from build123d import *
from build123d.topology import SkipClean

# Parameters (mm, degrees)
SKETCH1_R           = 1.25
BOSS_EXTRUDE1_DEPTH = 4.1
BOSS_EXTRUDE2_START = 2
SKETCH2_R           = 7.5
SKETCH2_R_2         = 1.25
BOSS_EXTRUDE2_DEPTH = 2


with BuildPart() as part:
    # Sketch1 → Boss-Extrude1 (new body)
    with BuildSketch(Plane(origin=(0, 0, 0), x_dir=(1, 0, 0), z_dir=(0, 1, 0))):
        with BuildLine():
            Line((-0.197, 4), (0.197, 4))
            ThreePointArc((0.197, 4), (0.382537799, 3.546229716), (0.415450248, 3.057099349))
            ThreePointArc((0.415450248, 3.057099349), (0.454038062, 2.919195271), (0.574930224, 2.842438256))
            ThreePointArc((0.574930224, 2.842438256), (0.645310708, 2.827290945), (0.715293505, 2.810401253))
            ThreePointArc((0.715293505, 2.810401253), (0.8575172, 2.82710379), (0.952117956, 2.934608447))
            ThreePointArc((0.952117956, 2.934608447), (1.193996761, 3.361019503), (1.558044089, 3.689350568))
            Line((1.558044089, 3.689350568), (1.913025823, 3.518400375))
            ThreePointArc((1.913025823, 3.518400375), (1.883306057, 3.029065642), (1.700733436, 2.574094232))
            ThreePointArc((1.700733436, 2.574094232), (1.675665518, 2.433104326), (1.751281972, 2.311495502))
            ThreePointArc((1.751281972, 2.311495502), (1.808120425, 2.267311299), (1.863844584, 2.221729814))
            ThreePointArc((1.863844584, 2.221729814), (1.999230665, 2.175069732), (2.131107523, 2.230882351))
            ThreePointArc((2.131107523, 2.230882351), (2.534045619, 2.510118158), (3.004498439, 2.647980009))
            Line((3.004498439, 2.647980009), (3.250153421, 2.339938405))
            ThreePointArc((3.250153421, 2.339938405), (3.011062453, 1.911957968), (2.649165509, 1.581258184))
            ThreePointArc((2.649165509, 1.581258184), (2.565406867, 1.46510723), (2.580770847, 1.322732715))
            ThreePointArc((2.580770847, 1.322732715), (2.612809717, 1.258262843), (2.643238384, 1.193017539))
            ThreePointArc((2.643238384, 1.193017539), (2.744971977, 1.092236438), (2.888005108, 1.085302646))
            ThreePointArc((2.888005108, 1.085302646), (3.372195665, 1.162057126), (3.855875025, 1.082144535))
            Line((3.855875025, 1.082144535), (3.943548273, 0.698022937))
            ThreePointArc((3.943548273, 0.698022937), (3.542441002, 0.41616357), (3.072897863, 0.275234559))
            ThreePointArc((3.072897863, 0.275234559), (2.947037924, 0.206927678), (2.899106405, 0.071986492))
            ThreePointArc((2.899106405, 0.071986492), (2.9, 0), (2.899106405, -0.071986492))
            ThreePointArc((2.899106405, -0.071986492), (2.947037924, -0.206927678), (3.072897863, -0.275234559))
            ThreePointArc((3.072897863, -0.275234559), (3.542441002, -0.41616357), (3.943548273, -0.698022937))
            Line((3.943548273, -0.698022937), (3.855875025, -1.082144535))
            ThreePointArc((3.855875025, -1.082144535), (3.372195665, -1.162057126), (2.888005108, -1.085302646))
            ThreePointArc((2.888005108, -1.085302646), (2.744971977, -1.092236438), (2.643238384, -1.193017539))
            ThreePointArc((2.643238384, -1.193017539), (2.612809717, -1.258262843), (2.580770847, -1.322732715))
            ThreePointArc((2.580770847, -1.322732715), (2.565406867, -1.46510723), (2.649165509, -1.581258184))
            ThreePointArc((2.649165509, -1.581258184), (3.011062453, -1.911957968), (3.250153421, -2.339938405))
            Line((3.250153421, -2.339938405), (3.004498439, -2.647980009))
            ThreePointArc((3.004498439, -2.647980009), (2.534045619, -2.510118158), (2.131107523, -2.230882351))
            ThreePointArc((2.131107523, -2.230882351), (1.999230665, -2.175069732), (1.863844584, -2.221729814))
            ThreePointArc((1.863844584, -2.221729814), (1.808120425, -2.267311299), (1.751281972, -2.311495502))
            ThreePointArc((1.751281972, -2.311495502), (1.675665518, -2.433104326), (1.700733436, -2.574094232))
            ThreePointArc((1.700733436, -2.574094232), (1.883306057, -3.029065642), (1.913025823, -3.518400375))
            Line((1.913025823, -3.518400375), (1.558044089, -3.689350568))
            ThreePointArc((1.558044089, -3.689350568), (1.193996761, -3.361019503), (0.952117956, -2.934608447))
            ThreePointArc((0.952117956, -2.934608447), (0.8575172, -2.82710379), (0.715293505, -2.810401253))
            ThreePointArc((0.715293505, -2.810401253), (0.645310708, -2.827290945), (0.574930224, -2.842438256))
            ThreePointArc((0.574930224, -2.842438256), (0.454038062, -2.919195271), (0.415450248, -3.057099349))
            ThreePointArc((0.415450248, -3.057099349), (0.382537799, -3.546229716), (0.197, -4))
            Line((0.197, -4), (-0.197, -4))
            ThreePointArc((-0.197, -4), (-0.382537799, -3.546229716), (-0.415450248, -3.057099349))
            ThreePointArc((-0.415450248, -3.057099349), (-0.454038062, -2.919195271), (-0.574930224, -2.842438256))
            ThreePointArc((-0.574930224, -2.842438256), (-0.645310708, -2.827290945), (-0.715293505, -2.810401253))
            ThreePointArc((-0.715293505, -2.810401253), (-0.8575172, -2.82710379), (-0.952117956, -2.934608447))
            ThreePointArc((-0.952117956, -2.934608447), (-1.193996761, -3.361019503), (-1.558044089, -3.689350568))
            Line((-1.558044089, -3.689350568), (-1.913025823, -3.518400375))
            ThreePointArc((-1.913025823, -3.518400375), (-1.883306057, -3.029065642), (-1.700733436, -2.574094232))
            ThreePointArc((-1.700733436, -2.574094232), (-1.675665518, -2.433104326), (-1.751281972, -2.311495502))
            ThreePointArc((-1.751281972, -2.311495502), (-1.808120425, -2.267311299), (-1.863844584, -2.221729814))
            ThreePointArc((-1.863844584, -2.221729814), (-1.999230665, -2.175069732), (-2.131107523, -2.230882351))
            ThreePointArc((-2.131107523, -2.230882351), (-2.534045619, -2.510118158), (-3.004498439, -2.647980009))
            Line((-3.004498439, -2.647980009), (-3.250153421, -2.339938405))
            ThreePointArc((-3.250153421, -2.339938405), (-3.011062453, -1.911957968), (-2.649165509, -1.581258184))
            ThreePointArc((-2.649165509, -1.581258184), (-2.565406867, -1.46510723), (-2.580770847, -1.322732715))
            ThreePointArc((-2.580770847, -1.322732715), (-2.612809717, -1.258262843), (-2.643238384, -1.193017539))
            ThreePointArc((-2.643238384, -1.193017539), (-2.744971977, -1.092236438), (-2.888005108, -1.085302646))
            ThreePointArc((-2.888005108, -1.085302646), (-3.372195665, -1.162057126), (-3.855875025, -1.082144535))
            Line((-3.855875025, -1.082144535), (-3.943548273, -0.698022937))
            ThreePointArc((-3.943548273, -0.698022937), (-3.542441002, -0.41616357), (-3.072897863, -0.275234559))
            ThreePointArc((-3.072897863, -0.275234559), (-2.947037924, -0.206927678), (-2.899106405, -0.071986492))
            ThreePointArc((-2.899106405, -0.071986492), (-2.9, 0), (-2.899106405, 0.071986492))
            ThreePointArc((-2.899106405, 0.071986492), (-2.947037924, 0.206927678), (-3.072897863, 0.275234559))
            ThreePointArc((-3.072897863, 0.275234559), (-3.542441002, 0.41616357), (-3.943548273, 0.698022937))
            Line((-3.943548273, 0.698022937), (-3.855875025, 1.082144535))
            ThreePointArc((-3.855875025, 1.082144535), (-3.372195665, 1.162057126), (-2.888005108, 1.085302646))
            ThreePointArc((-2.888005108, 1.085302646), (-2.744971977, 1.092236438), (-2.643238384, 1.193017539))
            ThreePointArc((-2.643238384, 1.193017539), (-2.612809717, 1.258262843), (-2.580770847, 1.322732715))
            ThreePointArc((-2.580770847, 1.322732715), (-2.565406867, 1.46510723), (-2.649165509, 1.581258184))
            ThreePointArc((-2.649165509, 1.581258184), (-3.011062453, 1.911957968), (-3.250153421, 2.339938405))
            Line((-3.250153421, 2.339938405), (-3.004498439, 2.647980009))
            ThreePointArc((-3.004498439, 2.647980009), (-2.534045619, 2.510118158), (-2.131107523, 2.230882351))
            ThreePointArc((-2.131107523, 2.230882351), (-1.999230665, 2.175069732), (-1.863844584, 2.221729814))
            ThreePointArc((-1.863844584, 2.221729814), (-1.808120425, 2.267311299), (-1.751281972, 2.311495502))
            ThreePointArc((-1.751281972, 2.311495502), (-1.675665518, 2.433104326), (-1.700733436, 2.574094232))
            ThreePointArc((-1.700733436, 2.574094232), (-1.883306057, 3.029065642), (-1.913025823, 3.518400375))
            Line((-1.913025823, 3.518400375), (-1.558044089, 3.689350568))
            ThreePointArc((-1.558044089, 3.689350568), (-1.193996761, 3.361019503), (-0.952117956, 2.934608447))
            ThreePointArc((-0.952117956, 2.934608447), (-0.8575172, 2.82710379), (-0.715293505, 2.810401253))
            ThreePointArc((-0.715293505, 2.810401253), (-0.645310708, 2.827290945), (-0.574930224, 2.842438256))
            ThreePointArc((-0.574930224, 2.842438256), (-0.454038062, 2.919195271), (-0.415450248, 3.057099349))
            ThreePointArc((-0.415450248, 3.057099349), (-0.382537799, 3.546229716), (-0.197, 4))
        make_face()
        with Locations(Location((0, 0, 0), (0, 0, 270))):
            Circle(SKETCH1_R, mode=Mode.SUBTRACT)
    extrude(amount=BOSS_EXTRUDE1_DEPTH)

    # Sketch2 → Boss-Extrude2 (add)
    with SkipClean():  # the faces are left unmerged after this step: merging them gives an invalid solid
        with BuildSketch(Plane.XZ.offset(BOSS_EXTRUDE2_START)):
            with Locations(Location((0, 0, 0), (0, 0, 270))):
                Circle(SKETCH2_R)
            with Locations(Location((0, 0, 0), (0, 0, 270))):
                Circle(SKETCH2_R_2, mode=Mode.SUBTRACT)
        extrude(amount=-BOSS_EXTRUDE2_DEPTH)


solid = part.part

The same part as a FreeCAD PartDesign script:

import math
import FreeCAD as App
import Part
import Sketcher

doc = App.newDocument("Part")
body = doc.addObject("PartDesign::Body", "Body")

# Sketch on XZ plane
sketch1 = body.newObject("Sketcher::SketchObject", "Sketch")
sketch1.AttachmentSupport = (doc.getObject("XZ_Plane"), [""])
sketch1.MapMode = "FlatFace"
sketch1.addGeometry([
    Part.LineSegment(App.Vector(0.2, -4, 0), App.Vector(-0.2, -4, 0)),  # 0
    Part.ArcOfCircle(Part.Circle(App.Vector(1.11, -3.2, 0), App.Vector(0, 0, 1), 1.53), math.radians(175), math.radians(211)),  # 1
    Part.ArcOfCircle(Part.Circle(App.Vector(-0.61, -3.04, 0), App.Vector(0, 0, 1), 0.2), math.radians(-5), math.radians(79)),  # 2
    Part.ArcOfCircle(Part.Circle(App.Vector(0, 0, 0), App.Vector(0, 0, 1), 2.9), math.radians(-104.28), math.radians(-101.43)),  # 3
    Part.ArcOfCircle(Part.Circle(App.Vector(-0.76, -3, 0), App.Vector(0, 0, 1), 0.2), math.radians(76), math.radians(160)),  # 4
    Part.ArcOfCircle(Part.Circle(App.Vector(-2.39, -2.4, 0), App.Vector(0, 0, 1), 1.53), math.radians(-57), math.radians(-20)),  # 5
    Part.LineSegment(App.Vector(-1.56, -3.69, 0), App.Vector(-1.91, -3.52, 0)),  # 6
    Part.ArcOfCircle(Part.Circle(App.Vector(-0.39, -3.37, 0), App.Vector(0, 0, 1), 1.53), math.radians(149), math.radians(186)),  # 7
    Part.ArcOfCircle(Part.Circle(App.Vector(-1.87, -2.47, 0), App.Vector(0, 0, 1), 0.2), math.radians(-31), math.radians(53)),  # 8
    Part.ArcOfCircle(Part.Circle(App.Vector(0, 0, 0), App.Vector(0, 0, 1), 2.9), math.radians(-129.99), math.radians(-127.15)),  # 9
    Part.ArcOfCircle(Part.Circle(App.Vector(-1.99, -2.37, 0), App.Vector(0, 0, 1), 0.2), math.radians(50), math.radians(134)),  # 10
    Part.ArcOfCircle(Part.Circle(App.Vector(-3.2, -1.13, 0), App.Vector(0, 0, 1), 1.53), math.radians(-83), math.radians(-46)),  # 11
    Part.LineSegment(App.Vector(-3, -2.65, 0), App.Vector(-3.25, -2.34, 0)),  # 12
    Part.ArcOfCircle(Part.Circle(App.Vector(-1.81, -2.86, 0), App.Vector(0, 0, 1), 1.53), math.radians(123), math.radians(160)),  # 13
    Part.ArcOfCircle(Part.Circle(App.Vector(-2.76, -1.41, 0), App.Vector(0, 0, 1), 0.2), math.radians(-57), math.radians(27)),  # 14
    Part.ArcOfCircle(Part.Circle(App.Vector(0, 0, 0), App.Vector(0, 0, 1), 2.9), math.radians(-155.71), math.radians(-152.86)),  # 15
    Part.ArcOfCircle(Part.Circle(App.Vector(-2.83, -1.28, 0), App.Vector(0, 0, 1), 0.2), math.radians(24), math.radians(108)),  # 16
    Part.ArcOfCircle(Part.Circle(App.Vector(-3.37, 0.37, 0), App.Vector(0, 0, 1), 1.53), math.radians(-109), math.radians(-72)),  # 17
    Part.LineSegment(App.Vector(-3.86, -1.08, 0), App.Vector(-3.94, -0.7, 0)),  # 18
    Part.ArcOfCircle(Part.Circle(App.Vector(-2.87, -1.8, 0), App.Vector(0, 0, 1), 1.53), math.radians(98), math.radians(134)),  # 19
    Part.ArcOfCircle(Part.Circle(App.Vector(-3.1, -0.08, 0), App.Vector(0, 0, 1), 0.2), math.radians(-82), math.radians(1)),  # 20
    Part.ArcOfCircle(Part.Circle(App.Vector(0, 0, 0), App.Vector(0, 0, 1), 2.9), math.radians(178.58), math.radians(181.42)),  # 21
    Part.ArcOfCircle(Part.Circle(App.Vector(-3.1, 0.08, 0), App.Vector(0, 0, 1), 0.2), math.radians(-1), math.radians(82)),  # 22
    Part.ArcOfCircle(Part.Circle(App.Vector(-2.87, 1.8, 0), App.Vector(0, 0, 1), 1.53), math.radians(-134), math.radians(-98)),  # 23
    Part.LineSegment(App.Vector(-3.94, 0.7, 0), App.Vector(-3.86, 1.08, 0)),  # 24
    Part.ArcOfCircle(Part.Circle(App.Vector(-3.37, -0.37, 0), App.Vector(0, 0, 1), 1.53), math.radians(72), math.radians(109)),  # 25
    Part.ArcOfCircle(Part.Circle(App.Vector(-2.83, 1.28, 0), App.Vector(0, 0, 1), 0.2), math.radians(-108), math.radians(-24)),  # 26
    Part.ArcOfCircle(Part.Circle(App.Vector(0, 0, 0), App.Vector(0, 0, 1), 2.9), math.radians(152.86), math.radians(155.71)),  # 27
    Part.ArcOfCircle(Part.Circle(App.Vector(-2.76, 1.41, 0), App.Vector(0, 0, 1), 0.2), math.radians(-27), math.radians(57)),  # 28
    Part.ArcOfCircle(Part.Circle(App.Vector(-1.81, 2.86, 0), App.Vector(0, 0, 1), 1.53), math.radians(-160), math.radians(-123)),  # 29
    Part.LineSegment(App.Vector(-3.25, 2.34, 0), App.Vector(-3, 2.65, 0)),  # 30
    Part.ArcOfCircle(Part.Circle(App.Vector(-3.2, 1.13, 0), App.Vector(0, 0, 1), 1.53), math.radians(46), math.radians(83)),  # 31
    Part.ArcOfCircle(Part.Circle(App.Vector(-1.99, 2.37, 0), App.Vector(0, 0, 1), 0.2), math.radians(-134), math.radians(-50)),  # 32
    Part.ArcOfCircle(Part.Circle(App.Vector(0, 0, 0), App.Vector(0, 0, 1), 2.9), math.radians(127.15), math.radians(129.99)),  # 33
    Part.ArcOfCircle(Part.Circle(App.Vector(-1.87, 2.47, 0), App.Vector(0, 0, 1), 0.2), math.radians(-53), math.radians(31)),  # 34
    Part.ArcOfCircle(Part.Circle(App.Vector(-0.39, 3.37, 0), App.Vector(0, 0, 1), 1.53), math.radians(174), math.radians(211)),  # 35
    Part.LineSegment(App.Vector(-1.91, 3.52, 0), App.Vector(-1.56, 3.69, 0)),  # 36
    Part.ArcOfCircle(Part.Circle(App.Vector(-2.39, 2.4, 0), App.Vector(0, 0, 1), 1.53), math.radians(20), math.radians(57)),  # 37
    Part.ArcOfCircle(Part.Circle(App.Vector(-0.76, 3, 0), App.Vector(0, 0, 1), 0.2), math.radians(-160), math.radians(-76)),  # 38
    Part.ArcOfCircle(Part.Circle(App.Vector(0, 0, 0), App.Vector(0, 0, 1), 2.9), math.radians(101.43), math.radians(104.28)),  # 39
    Part.ArcOfCircle(Part.Circle(App.Vector(-0.61, 3.04, 0), App.Vector(0, 0, 1), 0.2), math.radians(-79), math.radians(5)),  # 40
    Part.ArcOfCircle(Part.Circle(App.Vector(1.11, 3.2, 0), App.Vector(0, 0, 1), 1.53), math.radians(149), math.radians(185)),  # 41
    Part.LineSegment(App.Vector(-0.2, 4, 0), App.Vector(0.2, 4, 0)),  # 42
    Part.ArcOfCircle(Part.Circle(App.Vector(-1.11, 3.2, 0), App.Vector(0, 0, 1), 1.53), math.radians(-5), math.radians(31)),  # 43
    Part.ArcOfCircle(Part.Circle(App.Vector(0.61, 3.04, 0), App.Vector(0, 0, 1), 0.2), math.radians(175), math.radians(259)),  # 44
    Part.ArcOfCircle(Part.Circle(App.Vector(0, 0, 0), App.Vector(0, 0, 1), 2.9), math.radians(75.72), math.radians(78.57)),  # 45
    Part.ArcOfCircle(Part.Circle(App.Vector(0.76, 3, 0), App.Vector(0, 0, 1), 0.2), math.radians(-104), math.radians(-20)),  # 46
    Part.ArcOfCircle(Part.Circle(App.Vector(2.39, 2.4, 0), App.Vector(0, 0, 1), 1.53), math.radians(123), math.radians(160)),  # 47
    Part.LineSegment(App.Vector(1.56, 3.69, 0), App.Vector(1.91, 3.52, 0)),  # 48
    Part.ArcOfCircle(Part.Circle(App.Vector(0.39, 3.37, 0), App.Vector(0, 0, 1), 1.53), math.radians(-31), math.radians(6)),  # 49
    Part.ArcOfCircle(Part.Circle(App.Vector(1.87, 2.47, 0), App.Vector(0, 0, 1), 0.2), math.radians(149), math.radians(233)),  # 50
    Part.ArcOfCircle(Part.Circle(App.Vector(0, 0, 0), App.Vector(0, 0, 1), 2.9), math.radians(50.01), math.radians(52.85)),  # 51
    Part.ArcOfCircle(Part.Circle(App.Vector(1.99, 2.37, 0), App.Vector(0, 0, 1), 0.2), math.radians(-130), math.radians(-46)),  # 52
    Part.ArcOfCircle(Part.Circle(App.Vector(3.2, 1.13, 0), App.Vector(0, 0, 1), 1.53), math.radians(97), math.radians(134)),  # 53
    Part.LineSegment(App.Vector(3, 2.65, 0), App.Vector(3.25, 2.34, 0)),  # 54
    Part.ArcOfCircle(Part.Circle(App.Vector(1.81, 2.86, 0), App.Vector(0, 0, 1), 1.53), math.radians(-57), math.radians(-20)),  # 55
    Part.ArcOfCircle(Part.Circle(App.Vector(2.76, 1.41, 0), App.Vector(0, 0, 1), 0.2), math.radians(123), math.radians(207)),  # 56
    Part.ArcOfCircle(Part.Circle(App.Vector(0, 0, 0), App.Vector(0, 0, 1), 2.9), math.radians(24.29), math.radians(27.14)),  # 57
    Part.ArcOfCircle(Part.Circle(App.Vector(2.83, 1.28, 0), App.Vector(0, 0, 1), 0.2), math.radians(-156), math.radians(-72)),  # 58
    Part.ArcOfCircle(Part.Circle(App.Vector(3.37, -0.37, 0), App.Vector(0, 0, 1), 1.53), math.radians(71), math.radians(108)),  # 59
    Part.LineSegment(App.Vector(3.86, 1.08, 0), App.Vector(3.94, 0.7, 0)),  # 60
    Part.ArcOfCircle(Part.Circle(App.Vector(2.87, 1.8, 0), App.Vector(0, 0, 1), 1.53), math.radians(-82), math.radians(-46)),  # 61
    Part.ArcOfCircle(Part.Circle(App.Vector(3.1, 0.08, 0), App.Vector(0, 0, 1), 0.2), math.radians(98), math.radians(181)),  # 62
    Part.ArcOfCircle(Part.Circle(App.Vector(0, 0, 0), App.Vector(0, 0, 1), 2.9), math.radians(-1.42), math.radians(1.42)),  # 63
    Part.ArcOfCircle(Part.Circle(App.Vector(3.1, -0.08, 0), App.Vector(0, 0, 1), 0.2), math.radians(179), math.radians(262)),  # 64
    Part.ArcOfCircle(Part.Circle(App.Vector(2.87, -1.8, 0), App.Vector(0, 0, 1), 1.53), math.radians(46), math.radians(82)),  # 65
    Part.LineSegment(App.Vector(3.94, -0.7, 0), App.Vector(3.86, -1.08, 0)),  # 66
    Part.ArcOfCircle(Part.Circle(App.Vector(3.37, 0.37, 0), App.Vector(0, 0, 1), 1.53), math.radians(-108), math.radians(-71)),  # 67
    Part.ArcOfCircle(Part.Circle(App.Vector(2.83, -1.28, 0), App.Vector(0, 0, 1), 0.2), math.radians(72), math.radians(156)),  # 68
    Part.ArcOfCircle(Part.Circle(App.Vector(0, 0, 0), App.Vector(0, 0, 1), 2.9), math.radians(-27.14), math.radians(-24.29)),  # 69
    Part.ArcOfCircle(Part.Circle(App.Vector(2.76, -1.41, 0), App.Vector(0, 0, 1), 0.2), math.radians(153), math.radians(237)),  # 70
    Part.ArcOfCircle(Part.Circle(App.Vector(1.81, -2.86, 0), App.Vector(0, 0, 1), 1.53), math.radians(20), math.radians(57)),  # 71
    Part.LineSegment(App.Vector(3.25, -2.34, 0), App.Vector(3, -2.65, 0)),  # 72
    Part.ArcOfCircle(Part.Circle(App.Vector(3.2, -1.13, 0), App.Vector(0, 0, 1), 1.53), math.radians(-134), math.radians(-97)),  # 73
    Part.ArcOfCircle(Part.Circle(App.Vector(1.99, -2.37, 0), App.Vector(0, 0, 1), 0.2), math.radians(46), math.radians(130)),  # 74
    Part.ArcOfCircle(Part.Circle(App.Vector(0, 0, 0), App.Vector(0, 0, 1), 2.9), math.radians(-52.85), math.radians(-50.01)),  # 75
    Part.ArcOfCircle(Part.Circle(App.Vector(1.87, -2.47, 0), App.Vector(0, 0, 1), 0.2), math.radians(127), math.radians(211)),  # 76
    Part.ArcOfCircle(Part.Circle(App.Vector(0.39, -3.37, 0), App.Vector(0, 0, 1), 1.53), math.radians(-6), math.radians(31)),  # 77
    Part.LineSegment(App.Vector(1.91, -3.52, 0), App.Vector(1.56, -3.69, 0)),  # 78
    Part.ArcOfCircle(Part.Circle(App.Vector(2.39, -2.4, 0), App.Vector(0, 0, 1), 1.53), math.radians(-160), math.radians(-123)),  # 79
    Part.ArcOfCircle(Part.Circle(App.Vector(0.76, -3, 0), App.Vector(0, 0, 1), 0.2), math.radians(20), math.radians(104)),  # 80
    Part.ArcOfCircle(Part.Circle(App.Vector(0, 0, 0), App.Vector(0, 0, 1), 2.9), math.radians(-78.57), math.radians(-75.72)),  # 81
    Part.ArcOfCircle(Part.Circle(App.Vector(0.61, -3.04, 0), App.Vector(0, 0, 1), 0.2), math.radians(101), math.radians(185)),  # 82
    Part.ArcOfCircle(Part.Circle(App.Vector(-1.11, -3.2, 0), App.Vector(0, 0, 1), 1.53), math.radians(-31), math.radians(5)),  # 83
    Part.Circle(App.Vector(0, 0, 0), App.Vector(0, 0, 1), 1.25),  # 84
], False)
sketch1.addConstraint([
    Sketcher.Constraint("Coincident", 0, 2, 1, 2),
    Sketcher.Constraint("Tangent", 1, 1, 2, 1),
    Sketcher.Constraint("Tangent", 2, 2, 3, 2),
    Sketcher.Constraint("Tangent", 3, 1, 4, 1),
    Sketcher.Constraint("Tangent", 4, 2, 5, 2),
    Sketcher.Constraint("Coincident", 5, 1, 6, 1),
    Sketcher.Constraint("Coincident", 6, 2, 7, 2),
    Sketcher.Constraint("Tangent", 7, 1, 8, 1),
    Sketcher.Constraint("Tangent", 8, 2, 9, 2),
    Sketcher.Constraint("Tangent", 9, 1, 10, 1),
    Sketcher.Constraint("Tangent", 10, 2, 11, 2),
    Sketcher.Constraint("Coincident", 11, 1, 12, 1),
    Sketcher.Constraint("Coincident", 12, 2, 13, 2),
    Sketcher.Constraint("Tangent", 13, 1, 14, 1),
    Sketcher.Constraint("Tangent", 14, 2, 15, 2),
    Sketcher.Constraint("Tangent", 15, 1, 16, 1),
    Sketcher.Constraint("Tangent", 16, 2, 17, 2),
    Sketcher.Constraint("Coincident", 17, 1, 18, 1),
    Sketcher.Constraint("Coincident", 18, 2, 19, 2),
    Sketcher.Constraint("Tangent", 19, 1, 20, 1),
    Sketcher.Constraint("Tangent", 20, 2, 21, 2),
    Sketcher.Constraint("Tangent", 21, 1, 22, 1),
    Sketcher.Constraint("Tangent", 22, 2, 23, 2),
    Sketcher.Constraint("Coincident", 23, 1, 24, 1),
    Sketcher.Constraint("Coincident", 24, 2, 25, 2),
    Sketcher.Constraint("Tangent", 25, 1, 26, 1),
    Sketcher.Constraint("Tangent", 26, 2, 27, 2),
    Sketcher.Constraint("Tangent", 27, 1, 28, 1),
    Sketcher.Constraint("Tangent", 28, 2, 29, 2),
    Sketcher.Constraint("Coincident", 29, 1, 30, 1),
    Sketcher.Constraint("Coincident", 30, 2, 31, 2),
    Sketcher.Constraint("Tangent", 31, 1, 32, 1),
    Sketcher.Constraint("Tangent", 32, 2, 33, 2),
    Sketcher.Constraint("Tangent", 33, 1, 34, 1),
    Sketcher.Constraint("Tangent", 34, 2, 35, 2),
    Sketcher.Constraint("Coincident", 35, 1, 36, 1),
    Sketcher.Constraint("Coincident", 36, 2, 37, 2),
    Sketcher.Constraint("Tangent", 37, 1, 38, 1),
    Sketcher.Constraint("Tangent", 38, 2, 39, 2),
    Sketcher.Constraint("Tangent", 39, 1, 40, 1),
    Sketcher.Constraint("Tangent", 40, 2, 41, 2),
    Sketcher.Constraint("Coincident", 41, 1, 42, 1),
    Sketcher.Constraint("Coincident", 42, 2, 43, 2),
    Sketcher.Constraint("Tangent", 43, 1, 44, 1),
    Sketcher.Constraint("Tangent", 44, 2, 45, 2),
    Sketcher.Constraint("Tangent", 45, 1, 46, 1),
    Sketcher.Constraint("Tangent", 46, 2, 47, 2),
    Sketcher.Constraint("Coincident", 47, 1, 48, 1),
    Sketcher.Constraint("Coincident", 48, 2, 49, 2),
    Sketcher.Constraint("Tangent", 49, 1, 50, 1),
    Sketcher.Constraint("Tangent", 50, 2, 51, 2),
    Sketcher.Constraint("Tangent", 51, 1, 52, 1),
    Sketcher.Constraint("Tangent", 52, 2, 53, 2),
    Sketcher.Constraint("Coincident", 53, 1, 54, 1),
    Sketcher.Constraint("Coincident", 54, 2, 55, 2),
    Sketcher.Constraint("Tangent", 55, 1, 56, 1),
    Sketcher.Constraint("Tangent", 56, 2, 57, 2),
    Sketcher.Constraint("Tangent", 57, 1, 58, 1),
    Sketcher.Constraint("Tangent", 58, 2, 59, 2),
    Sketcher.Constraint("Coincident", 59, 1, 60, 1),
    Sketcher.Constraint("Coincident", 60, 2, 61, 2),
    Sketcher.Constraint("Tangent", 61, 1, 62, 1),
    Sketcher.Constraint("Tangent", 62, 2, 63, 2),
    Sketcher.Constraint("Tangent", 63, 1, 64, 1),
    Sketcher.Constraint("Tangent", 64, 2, 65, 2),
    Sketcher.Constraint("Coincident", 65, 1, 66, 1),
    Sketcher.Constraint("Coincident", 66, 2, 67, 2),
    Sketcher.Constraint("Tangent", 67, 1, 68, 1),
    Sketcher.Constraint("Tangent", 68, 2, 69, 2),
    Sketcher.Constraint("Tangent", 69, 1, 70, 1),
    Sketcher.Constraint("Tangent", 70, 2, 71, 2),
    Sketcher.Constraint("Coincident", 71, 1, 72, 1),
    Sketcher.Constraint("Coincident", 72, 2, 73, 2),
    Sketcher.Constraint("Tangent", 73, 1, 74, 1),
    Sketcher.Constraint("Tangent", 74, 2, 75, 2),
    Sketcher.Constraint("Tangent", 75, 1, 76, 1),
    Sketcher.Constraint("Tangent", 76, 2, 77, 2),
    Sketcher.Constraint("Coincident", 77, 1, 78, 1),
    Sketcher.Constraint("Coincident", 78, 2, 79, 2),
    Sketcher.Constraint("Tangent", 79, 1, 80, 1),
    Sketcher.Constraint("Tangent", 80, 2, 81, 2),
    Sketcher.Constraint("Tangent", 81, 1, 82, 1),
    Sketcher.Constraint("Tangent", 82, 2, 83, 2),
    Sketcher.Constraint("Coincident", 83, 1, 0, 1),
    Sketcher.Constraint("Horizontal", 0),
    Sketcher.Constraint("Horizontal", 42),
    Sketcher.Constraint("Coincident", 3, 3, -1, 1),
    Sketcher.Constraint("Coincident", 9, 3, -1, 1),
    Sketcher.Constraint("Coincident", 15, 3, -1, 1),
    Sketcher.Constraint("Coincident", 21, 3, -1, 1),
    Sketcher.Constraint("Coincident", 27, 3, -1, 1),
    Sketcher.Constraint("Coincident", 33, 3, -1, 1),
    Sketcher.Constraint("Coincident", 39, 3, -1, 1),
    Sketcher.Constraint("Coincident", 45, 3, -1, 1),
    Sketcher.Constraint("Coincident", 51, 3, -1, 1),
    Sketcher.Constraint("Coincident", 57, 3, -1, 1),
    Sketcher.Constraint("Coincident", 63, 3, -1, 1),
    Sketcher.Constraint("Coincident", 69, 3, -1, 1),
    Sketcher.Constraint("Coincident", 75, 3, -1, 1),
    Sketcher.Constraint("Coincident", 81, 3, -1, 1),
    Sketcher.Constraint("Coincident", 84, 3, -1, 1),
    Sketcher.Constraint("Equal", 2, 4),
    Sketcher.Constraint("Equal", 1, 5),
    Sketcher.Constraint("Equal", 5, 7),
    Sketcher.Constraint("Equal", 4, 8),
    Sketcher.Constraint("Equal", 3, 9),
    Sketcher.Constraint("Equal", 8, 10),
    Sketcher.Constraint("Equal", 7, 11),
    Sketcher.Constraint("Equal", 11, 13),
    Sketcher.Constraint("Equal", 10, 14),
    Sketcher.Constraint("Equal", 9, 15),
    Sketcher.Constraint("Equal", 14, 16),
    Sketcher.Constraint("Equal", 13, 17),
    Sketcher.Constraint("Equal", 17, 19),
    Sketcher.Constraint("Equal", 16, 20),
    Sketcher.Constraint("Equal", 15, 21),
    Sketcher.Constraint("Equal", 20, 22),
    Sketcher.Constraint("Equal", 19, 23),
    Sketcher.Constraint("Equal", 23, 25),
    Sketcher.Constraint("Equal", 22, 26),
    Sketcher.Constraint("Equal", 21, 27),
    Sketcher.Constraint("Equal", 26, 28),
    Sketcher.Constraint("Equal", 25, 29),
    Sketcher.Constraint("Equal", 29, 31),
    Sketcher.Constraint("Equal", 28, 32),
    Sketcher.Constraint("Equal", 27, 33),
    Sketcher.Constraint("Equal", 32, 34),
    Sketcher.Constraint("Equal", 31, 35),
    Sketcher.Constraint("Equal", 35, 37),
    Sketcher.Constraint("Equal", 34, 38),
    Sketcher.Constraint("Equal", 33, 39),
    Sketcher.Constraint("Equal", 38, 40),
    Sketcher.Constraint("Equal", 37, 41),
    Sketcher.Constraint("Equal", 41, 43),
    Sketcher.Constraint("Equal", 40, 44),
    Sketcher.Constraint("Equal", 39, 45),
    Sketcher.Constraint("Equal", 44, 46),
    Sketcher.Constraint("Equal", 43, 47),
    Sketcher.Constraint("Equal", 47, 49),
    Sketcher.Constraint("Equal", 46, 50),
    Sketcher.Constraint("Equal", 45, 51),
    Sketcher.Constraint("Equal", 50, 52),
    Sketcher.Constraint("Equal", 49, 53),
    Sketcher.Constraint("Equal", 53, 55),
    Sketcher.Constraint("Equal", 52, 56),
    Sketcher.Constraint("Equal", 51, 57),
    Sketcher.Constraint("Equal", 56, 58),
    Sketcher.Constraint("Equal", 55, 59),
    Sketcher.Constraint("Equal", 59, 61),
    Sketcher.Constraint("Equal", 58, 62),
    Sketcher.Constraint("Equal", 57, 63),
    Sketcher.Constraint("Equal", 62, 64),
    Sketcher.Constraint("Equal", 61, 65),
    Sketcher.Constraint("Equal", 65, 67),
    Sketcher.Constraint("Equal", 64, 68),
    Sketcher.Constraint("Equal", 63, 69),
    Sketcher.Constraint("Equal", 68, 70),
    Sketcher.Constraint("Equal", 67, 71),
    Sketcher.Constraint("Equal", 71, 73),
    Sketcher.Constraint("Equal", 70, 74),
    Sketcher.Constraint("Equal", 69, 75),
    Sketcher.Constraint("Equal", 74, 76),
    Sketcher.Constraint("Equal", 73, 77),
    Sketcher.Constraint("Equal", 77, 79),
    Sketcher.Constraint("Equal", 76, 80),
    Sketcher.Constraint("Equal", 75, 81),
    Sketcher.Constraint("Equal", 80, 82),
    Sketcher.Constraint("Equal", 79, 83),
    Sketcher.Constraint("Symmetric", 1, 3, 43, 3, -1, 1),
    Sketcher.Constraint("Symmetric", 5, 3, 47, 3, -1, 1),
    Sketcher.Constraint("Symmetric", 7, 3, 49, 3, -1, 1),
    Sketcher.Constraint("Symmetric", 11, 3, 53, 3, -1, 1),
    Sketcher.Constraint("Symmetric", 13, 3, 55, 3, -1, 1),
    Sketcher.Constraint("Symmetric", 17, 3, 59, 3, -1, 1),
    Sketcher.Constraint("Symmetric", 19, 3, 61, 3, -1, 1),
    Sketcher.Constraint("Symmetric", 23, 3, 65, 3, -1, 1),
    Sketcher.Constraint("Symmetric", 25, 3, 67, 3, -1, 1),
    Sketcher.Constraint("Symmetric", 29, 3, 71, 3, -1, 1),
    Sketcher.Constraint("Symmetric", 31, 3, 73, 3, -1, 1),
    Sketcher.Constraint("Symmetric", 35, 3, 77, 3, -1, 1),
    Sketcher.Constraint("Symmetric", 37, 3, 79, 3, -1, 1),
    Sketcher.Constraint("Symmetric", 41, 3, 83, 3, -1, 1),
    Sketcher.Constraint("Symmetric", 41, 3, 43, 3, -2),
    Sketcher.Constraint("Symmetric", 37, 3, 47, 3, -2),
    Sketcher.Constraint("Symmetric", 35, 3, 49, 3, -2),
    Sketcher.Constraint("Symmetric", 31, 3, 53, 3, -2),
    Sketcher.Constraint("Symmetric", 29, 3, 55, 3, -2),
    Sketcher.Constraint("Symmetric", 25, 3, 59, 3, -2),
    Sketcher.Constraint("Symmetric", 23, 3, 61, 3, -2),
    Sketcher.Constraint("Parallel", 6, 48),
    Sketcher.Constraint("Parallel", 12, 54),
    Sketcher.Constraint("Parallel", 18, 60),
    Sketcher.Constraint("Parallel", 24, 66),
    Sketcher.Constraint("Parallel", 30, 72),
    Sketcher.Constraint("Parallel", 36, 78),
    Sketcher.Constraint("Horizontal", 36, 2, 47, 1),
    Sketcher.Constraint("Horizontal", 35, 1, 48, 2),
    Sketcher.Constraint("Horizontal", 30, 2, 53, 1),
    Sketcher.Constraint("Horizontal", 29, 1, 54, 2),
    Sketcher.Constraint("Horizontal", 24, 2, 59, 1),
    Sketcher.Constraint("Horizontal", 23, 1, 60, 2),
    Sketcher.Constraint("Horizontal", 18, 2, 65, 1),
    Sketcher.Constraint("Horizontal", 12, 2, 71, 1),
    Sketcher.Constraint("Horizontal", 6, 2, 77, 1),
    Sketcher.Constraint("Vertical", 18, 2, 23, 1),
    Sketcher.Constraint("Vertical", 12, 2, 29, 1),
    Sketcher.Constraint("Vertical", 6, 2, 35, 1),
    Sketcher.Constraint("Vertical", 0, 2, 41, 1),
    Sketcher.Constraint("Equal", 6, 12),
    Sketcher.Constraint("Equal", 12, 18),
    Sketcher.Constraint("Diameter", 84, 2.5),
    Sketcher.Constraint("Radius", 2, 0.2),
    Sketcher.Constraint("Radius", 9, 2.900001),
    Sketcher.Constraint("DistanceY", 0, 2, -1, 1, 4.0),
    Sketcher.Constraint("DistanceY", 1, 3, -1, 1, 3.2),
    Sketcher.Constraint("DistanceX", 0, 2, 0, 1, 0.394),
    Sketcher.Constraint("Radius", 1, 1.53402),
    Sketcher.Constraint("Distance", 6, 0.394),
    Sketcher.Constraint("DistanceY", 3, 1, -1, 1, 2.810401),
    Sketcher.Constraint("DistanceY", 6, 2, -1, 1, 3.5184),
    Sketcher.Constraint("DistanceX", 11, 1, -1, 1, 3.004498),
    Sketcher.Constraint("DistanceX", 7, 3, -1, 1, 0.386641),
    Sketcher.Constraint("DistanceX", 8, 3, -1, 1, 1.87206),
    Sketcher.Constraint("DistanceX", 11, 3, -1, 1, 3.195119),
    Sketcher.Constraint("DistanceY", 11, 3, -1, 1, 1.125849),
    Sketcher.Constraint("DistanceX", 16, 3, -1, 1, 2.825531),
    Sketcher.Constraint("DistanceX", 17, 3, -1, 1, 3.36719),
    Sketcher.Constraint("DistanceX", 19, 3, -1, 1, 2.872348),
    Sketcher.Constraint("DistanceY", 19, 3, -1, 1, 1.796089),
    Sketcher.Constraint("DistanceY", 4, 2, -1, 1, 2.934608),
    Sketcher.Constraint("DistanceY", 12, 2, -1, 1, 2.339938),
    Sketcher.Constraint("DistanceY", 13, 1, -1, 1, 1.581258),
    Sketcher.Constraint("DistanceX", 18, 2, -1, 1, 3.943548),
])
pad1 = body.newObject("PartDesign::Pad", "Pad")
pad1.Profile = sketch1
pad1.Length = 4.1
pad1.Reversed = True

# Sketch on XZ plane
sketch2 = body.newObject("Sketcher::SketchObject", "Sketch001")
sketch2.AttachmentSupport = (doc.getObject("XZ_Plane"), [""])
sketch2.MapMode = "FlatFace"
sketch2.AttachmentOffset = App.Placement(App.Vector(0, 0, 2), App.Rotation())
sketch2.addGeometry([
    Part.Circle(App.Vector(0, 0, 0), App.Vector(0, 0, 1), 7.5),
    Part.Circle(App.Vector(0, 0, 0), App.Vector(0, 0, 1), 1.2),
], False)
sketch2.addConstraint([
    Sketcher.Constraint("Coincident", 0, 3, -1, 1),
    Sketcher.Constraint("Coincident", 1, 3, -1, 1),
    Sketcher.Constraint("Diameter", 0, 15.0),
    Sketcher.Constraint("Diameter", 1, 2.5),
])
pad2 = body.newObject("PartDesign::Pad", "Pad001")
pad2.Profile = sketch2
pad2.Length = 2
pad2.Reversed = True

doc.recompute()
